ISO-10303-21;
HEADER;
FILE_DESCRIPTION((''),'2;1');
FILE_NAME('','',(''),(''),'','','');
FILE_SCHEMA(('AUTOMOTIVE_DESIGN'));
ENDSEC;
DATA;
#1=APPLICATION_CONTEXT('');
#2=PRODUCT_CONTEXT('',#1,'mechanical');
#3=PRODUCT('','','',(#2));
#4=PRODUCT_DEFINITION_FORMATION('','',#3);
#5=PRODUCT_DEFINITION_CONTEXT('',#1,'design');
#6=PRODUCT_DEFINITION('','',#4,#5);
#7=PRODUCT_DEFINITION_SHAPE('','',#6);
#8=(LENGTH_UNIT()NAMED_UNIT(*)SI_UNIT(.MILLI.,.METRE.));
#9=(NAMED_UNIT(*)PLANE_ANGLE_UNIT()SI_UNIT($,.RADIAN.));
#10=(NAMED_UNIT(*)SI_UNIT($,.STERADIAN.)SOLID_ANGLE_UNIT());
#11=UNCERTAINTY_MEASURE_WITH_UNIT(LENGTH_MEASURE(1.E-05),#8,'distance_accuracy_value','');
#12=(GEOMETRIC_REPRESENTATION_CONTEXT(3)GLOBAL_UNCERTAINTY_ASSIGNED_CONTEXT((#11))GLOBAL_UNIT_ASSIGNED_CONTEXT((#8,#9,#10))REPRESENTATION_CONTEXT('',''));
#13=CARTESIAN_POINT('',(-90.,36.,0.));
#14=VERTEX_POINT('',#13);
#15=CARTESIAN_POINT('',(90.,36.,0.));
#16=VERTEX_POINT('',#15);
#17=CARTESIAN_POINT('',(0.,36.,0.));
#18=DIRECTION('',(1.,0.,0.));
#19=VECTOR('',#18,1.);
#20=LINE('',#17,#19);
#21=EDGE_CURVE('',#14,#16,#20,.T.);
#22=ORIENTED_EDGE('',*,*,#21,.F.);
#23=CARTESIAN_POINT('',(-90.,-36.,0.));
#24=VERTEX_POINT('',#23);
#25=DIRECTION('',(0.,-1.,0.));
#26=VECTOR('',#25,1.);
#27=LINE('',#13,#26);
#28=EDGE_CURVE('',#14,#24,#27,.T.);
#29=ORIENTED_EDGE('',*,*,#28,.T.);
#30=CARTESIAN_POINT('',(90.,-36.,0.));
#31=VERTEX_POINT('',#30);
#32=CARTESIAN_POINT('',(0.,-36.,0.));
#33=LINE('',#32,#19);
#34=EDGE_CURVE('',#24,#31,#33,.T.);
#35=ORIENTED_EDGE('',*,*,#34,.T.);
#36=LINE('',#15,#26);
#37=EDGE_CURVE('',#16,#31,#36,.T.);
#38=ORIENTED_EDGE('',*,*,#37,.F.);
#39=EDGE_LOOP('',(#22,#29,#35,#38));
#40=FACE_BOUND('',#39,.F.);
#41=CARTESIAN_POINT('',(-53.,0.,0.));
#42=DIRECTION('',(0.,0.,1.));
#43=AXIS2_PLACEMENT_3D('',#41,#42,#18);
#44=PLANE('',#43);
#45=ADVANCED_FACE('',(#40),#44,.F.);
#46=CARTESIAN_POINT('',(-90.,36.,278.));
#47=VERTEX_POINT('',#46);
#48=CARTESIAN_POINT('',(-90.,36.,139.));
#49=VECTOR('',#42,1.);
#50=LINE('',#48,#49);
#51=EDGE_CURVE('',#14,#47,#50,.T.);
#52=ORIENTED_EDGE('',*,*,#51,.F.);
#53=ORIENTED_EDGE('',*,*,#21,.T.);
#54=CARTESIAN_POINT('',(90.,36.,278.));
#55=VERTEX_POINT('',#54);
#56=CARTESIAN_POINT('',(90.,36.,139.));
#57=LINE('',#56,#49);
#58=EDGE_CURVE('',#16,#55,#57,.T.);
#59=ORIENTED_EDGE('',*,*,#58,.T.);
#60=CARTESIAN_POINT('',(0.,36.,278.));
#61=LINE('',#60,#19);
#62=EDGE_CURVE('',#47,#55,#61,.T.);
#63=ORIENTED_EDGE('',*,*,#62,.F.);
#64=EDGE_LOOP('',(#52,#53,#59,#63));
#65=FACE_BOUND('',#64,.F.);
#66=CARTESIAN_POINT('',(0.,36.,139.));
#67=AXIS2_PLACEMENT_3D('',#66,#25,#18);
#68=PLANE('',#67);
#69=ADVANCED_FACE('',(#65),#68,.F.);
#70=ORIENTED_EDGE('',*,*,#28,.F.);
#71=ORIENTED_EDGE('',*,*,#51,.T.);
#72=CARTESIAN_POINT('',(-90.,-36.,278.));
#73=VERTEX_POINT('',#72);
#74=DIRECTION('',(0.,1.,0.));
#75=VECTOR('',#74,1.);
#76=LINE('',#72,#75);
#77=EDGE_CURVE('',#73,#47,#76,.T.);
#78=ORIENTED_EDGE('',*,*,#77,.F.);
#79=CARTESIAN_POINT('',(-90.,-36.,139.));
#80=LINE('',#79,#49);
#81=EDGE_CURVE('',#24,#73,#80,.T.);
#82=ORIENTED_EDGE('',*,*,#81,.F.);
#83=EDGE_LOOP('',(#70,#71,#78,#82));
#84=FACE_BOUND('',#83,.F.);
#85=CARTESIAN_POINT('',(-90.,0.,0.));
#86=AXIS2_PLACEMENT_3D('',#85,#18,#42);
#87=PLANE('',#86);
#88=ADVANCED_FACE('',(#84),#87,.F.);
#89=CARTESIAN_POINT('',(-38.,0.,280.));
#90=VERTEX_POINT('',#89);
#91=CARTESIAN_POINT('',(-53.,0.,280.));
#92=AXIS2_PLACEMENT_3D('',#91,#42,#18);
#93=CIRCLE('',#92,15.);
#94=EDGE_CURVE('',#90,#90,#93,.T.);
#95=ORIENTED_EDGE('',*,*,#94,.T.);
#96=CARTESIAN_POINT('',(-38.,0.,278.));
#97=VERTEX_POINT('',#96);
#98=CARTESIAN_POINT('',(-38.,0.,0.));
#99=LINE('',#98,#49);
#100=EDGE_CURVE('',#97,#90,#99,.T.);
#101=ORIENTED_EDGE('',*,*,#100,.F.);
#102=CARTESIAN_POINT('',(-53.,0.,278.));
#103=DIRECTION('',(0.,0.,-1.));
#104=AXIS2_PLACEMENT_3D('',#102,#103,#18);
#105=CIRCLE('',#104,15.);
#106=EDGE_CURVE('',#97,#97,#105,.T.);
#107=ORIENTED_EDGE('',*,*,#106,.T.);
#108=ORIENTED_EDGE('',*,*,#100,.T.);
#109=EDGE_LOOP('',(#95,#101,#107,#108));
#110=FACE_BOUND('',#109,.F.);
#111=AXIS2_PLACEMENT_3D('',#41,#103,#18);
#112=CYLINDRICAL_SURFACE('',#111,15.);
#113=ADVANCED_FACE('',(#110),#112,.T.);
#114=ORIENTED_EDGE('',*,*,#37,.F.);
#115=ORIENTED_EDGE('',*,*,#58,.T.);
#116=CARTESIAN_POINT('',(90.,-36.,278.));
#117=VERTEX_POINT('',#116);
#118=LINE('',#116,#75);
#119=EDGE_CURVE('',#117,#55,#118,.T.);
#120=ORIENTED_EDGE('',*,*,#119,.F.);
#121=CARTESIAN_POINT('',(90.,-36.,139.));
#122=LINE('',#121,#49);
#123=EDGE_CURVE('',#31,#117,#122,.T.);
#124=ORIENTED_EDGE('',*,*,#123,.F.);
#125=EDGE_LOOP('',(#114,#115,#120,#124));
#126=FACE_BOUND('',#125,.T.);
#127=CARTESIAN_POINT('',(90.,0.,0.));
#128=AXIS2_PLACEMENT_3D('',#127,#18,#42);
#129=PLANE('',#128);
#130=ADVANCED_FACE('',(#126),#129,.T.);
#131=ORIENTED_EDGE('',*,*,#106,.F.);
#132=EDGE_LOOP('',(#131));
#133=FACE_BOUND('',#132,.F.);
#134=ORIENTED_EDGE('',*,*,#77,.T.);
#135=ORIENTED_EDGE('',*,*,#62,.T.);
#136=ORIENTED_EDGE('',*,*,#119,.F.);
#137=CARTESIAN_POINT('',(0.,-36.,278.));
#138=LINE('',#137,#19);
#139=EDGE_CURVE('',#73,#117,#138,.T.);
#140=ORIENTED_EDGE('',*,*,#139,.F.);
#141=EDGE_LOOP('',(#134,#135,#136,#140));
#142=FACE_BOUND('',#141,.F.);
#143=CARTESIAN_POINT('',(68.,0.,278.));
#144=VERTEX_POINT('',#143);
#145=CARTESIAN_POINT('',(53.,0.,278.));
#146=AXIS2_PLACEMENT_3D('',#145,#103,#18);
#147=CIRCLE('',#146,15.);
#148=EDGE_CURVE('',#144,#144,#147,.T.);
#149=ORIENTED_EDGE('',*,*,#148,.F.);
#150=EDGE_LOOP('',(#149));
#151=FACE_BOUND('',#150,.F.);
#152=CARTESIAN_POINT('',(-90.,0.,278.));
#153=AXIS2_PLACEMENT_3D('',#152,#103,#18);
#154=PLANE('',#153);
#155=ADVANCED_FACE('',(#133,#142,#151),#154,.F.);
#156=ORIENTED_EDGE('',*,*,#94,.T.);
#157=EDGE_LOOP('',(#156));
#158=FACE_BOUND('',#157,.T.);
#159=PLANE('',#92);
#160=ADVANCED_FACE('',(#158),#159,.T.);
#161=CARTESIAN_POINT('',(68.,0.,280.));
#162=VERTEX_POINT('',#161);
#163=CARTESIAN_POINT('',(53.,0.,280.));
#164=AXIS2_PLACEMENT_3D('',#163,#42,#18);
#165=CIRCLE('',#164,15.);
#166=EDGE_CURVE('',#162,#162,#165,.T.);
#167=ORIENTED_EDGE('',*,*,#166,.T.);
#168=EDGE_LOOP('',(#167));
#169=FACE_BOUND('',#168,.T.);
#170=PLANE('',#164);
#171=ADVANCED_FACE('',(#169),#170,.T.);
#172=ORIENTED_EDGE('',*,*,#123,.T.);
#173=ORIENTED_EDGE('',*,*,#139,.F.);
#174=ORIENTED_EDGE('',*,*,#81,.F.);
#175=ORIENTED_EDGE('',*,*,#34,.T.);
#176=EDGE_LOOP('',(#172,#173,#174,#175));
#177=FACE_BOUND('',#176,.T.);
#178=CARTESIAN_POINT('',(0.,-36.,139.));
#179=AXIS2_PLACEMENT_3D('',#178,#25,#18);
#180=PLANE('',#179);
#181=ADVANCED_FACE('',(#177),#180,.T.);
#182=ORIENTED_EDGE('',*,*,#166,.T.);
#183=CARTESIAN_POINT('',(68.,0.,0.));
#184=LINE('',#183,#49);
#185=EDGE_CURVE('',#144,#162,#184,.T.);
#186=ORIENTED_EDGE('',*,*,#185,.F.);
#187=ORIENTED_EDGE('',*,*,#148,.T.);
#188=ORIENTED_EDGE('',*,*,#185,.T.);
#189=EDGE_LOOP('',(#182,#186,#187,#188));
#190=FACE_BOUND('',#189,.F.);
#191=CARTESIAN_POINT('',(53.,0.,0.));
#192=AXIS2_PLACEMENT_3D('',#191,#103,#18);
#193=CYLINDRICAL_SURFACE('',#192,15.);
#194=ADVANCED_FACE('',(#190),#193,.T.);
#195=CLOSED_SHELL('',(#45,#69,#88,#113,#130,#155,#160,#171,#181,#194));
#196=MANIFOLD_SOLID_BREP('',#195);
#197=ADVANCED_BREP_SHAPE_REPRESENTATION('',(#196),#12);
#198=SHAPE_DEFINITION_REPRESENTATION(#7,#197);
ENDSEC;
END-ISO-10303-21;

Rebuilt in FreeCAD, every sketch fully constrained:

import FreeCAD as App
import Part
import Sketcher
Q = App.Units.Quantity


def add_polygon(sketch, points):
    """Adds a closed chain of lines whose ends are joined by coincident constraints."""
    first, n = sketch.GeometryCount, len(points)
    for a, b in zip(points, points[1:] + points[:1]):
        sketch.addGeometry(Part.LineSegment(App.Vector(*a, 0), App.Vector(*b, 0)), False)
    for i in range(n):
        sketch.addConstraint(Sketcher.Constraint("Coincident", first + i, 2, first + (i + 1) % n, 1))

doc = App.newDocument("Part")
body = doc.addObject("PartDesign::Body", "Body")

sketch1 = body.newObject("Sketcher::SketchObject", "Sketch")
sketch1.AttachmentSupport = (doc.getObject("XZ_Plane"), [""])
sketch1.MapMode = "FlatFace"
add_polygon(sketch1, [(-90, 278), (-90, 0), (90, 0), (90, 278)])
sketch1.addConstraint([
    Sketcher.Constraint("Vertical", 0),
    Sketcher.Constraint("Horizontal", 1),
    Sketcher.Constraint("Vertical", 2),
    Sketcher.Constraint("Horizontal", 3),
    Sketcher.Constraint("Symmetric", 0, 2, 1, 2, -1, 1),
    Sketcher.Constraint("DistanceX", 1, 1, 1, 2, Q("180 mm")),
    Sketcher.Constraint("DistanceY", 0, 2, 0, 1, Q("278 mm")),
])
pad1 = body.newObject("PartDesign::Pad", "Pad")
pad1.Profile = sketch1
pad1.Length = 72
pad1.Midplane = True

sketch2 = body.newObject("Sketcher::SketchObject", "Sketch001")
sketch2.AttachmentSupport = (doc.getObject("XY_Plane"), [""])
sketch2.MapMode = "FlatFace"
sketch2.addGeometry([
    Part.Circle(App.Vector(-53, 0, 0), App.Vector(0, 0, 1), 15),
    Part.Circle(App.Vector(53, 0, 0), App.Vector(0, 0, 1), 15),
], False)
sketch2.addConstraint([
    Sketcher.Constraint("Equal", 0, 1),
    Sketcher.Constraint("Symmetric", 0, 3, 1, 3, -1, 1),
    Sketcher.Constraint("PointOnObject", 0, 3, -1),
    Sketcher.Constraint("Diameter", 0, Q("30 mm")),
    Sketcher.Constraint("DistanceX", 0, 3, -1, 1, Q("53 mm")),
])
pad2 = body.newObject("PartDesign::Pad", "Pad001")
pad2.Profile = sketch2
pad2.Length = 280

doc.recompute()
